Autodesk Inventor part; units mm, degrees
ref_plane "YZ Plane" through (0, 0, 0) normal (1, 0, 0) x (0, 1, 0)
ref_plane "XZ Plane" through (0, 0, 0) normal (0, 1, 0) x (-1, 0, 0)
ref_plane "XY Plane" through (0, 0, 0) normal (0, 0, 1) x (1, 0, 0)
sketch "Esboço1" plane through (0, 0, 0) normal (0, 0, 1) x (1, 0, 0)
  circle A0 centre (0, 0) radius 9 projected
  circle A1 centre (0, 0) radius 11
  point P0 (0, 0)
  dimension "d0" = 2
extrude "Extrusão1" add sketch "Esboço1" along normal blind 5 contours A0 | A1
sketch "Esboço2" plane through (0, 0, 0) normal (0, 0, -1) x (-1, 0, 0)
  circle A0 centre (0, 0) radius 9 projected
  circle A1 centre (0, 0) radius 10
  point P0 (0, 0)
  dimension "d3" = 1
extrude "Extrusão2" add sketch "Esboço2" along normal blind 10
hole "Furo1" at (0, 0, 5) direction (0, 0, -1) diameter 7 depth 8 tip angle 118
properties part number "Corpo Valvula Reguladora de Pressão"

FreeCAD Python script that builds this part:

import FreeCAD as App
import Part
import Sketcher
Q = App.Units.Quantity

doc = App.newDocument("Part")
body = doc.addObject("PartDesign::Body", "Body")

# Sketch on XY plane
sketch1 = body.newObject("Sketcher::SketchObject", "Sketch")
sketch1.AttachmentSupport = (doc.getObject("XY_Plane"), [""])
sketch1.MapMode = "FlatFace"
sketch1.addGeometry(Part.Circle(App.Vector(0, 0, 0), App.Vector(0, 0, 1), 11), False)
sketch1.addConstraint([
    Sketcher.Constraint("Coincident", 0, 3, -1, 1),
    Sketcher.Constraint("Diameter", 0, Q("22 mm")),
])
pad1 = body.newObject("PartDesign::Pad", "Pad")
pad1.Profile = sketch1
pad1.Length = 5

# Sketch on XY plane
sketch2 = body.newObject("Sketcher::SketchObject", "Sketch001")
sketch2.AttachmentSupport = (doc.getObject("XY_Plane"), [""])
sketch2.MapMode = "FlatFace"
sketch2.addGeometry([
    Part.Circle(App.Vector(0, 0, 0), App.Vector(0, 0, 1), 10),
    Part.Circle(App.Vector(0, 0, 0), App.Vector(0, 0, 1), 9),
], False)
sketch2.addConstraint([
    Sketcher.Constraint("Coincident", 0, 3, -1, 1),
    Sketcher.Constraint("Coincident", 1, 3, -1, 1),
    Sketcher.Constraint("Diameter", 0, Q("20 mm")),
    Sketcher.Constraint("Diameter", 1, Q("18 mm")),
])
pad2 = body.newObject("PartDesign::Pad", "Pad001")
pad2.Profile = sketch2
pad2.Length = 10
pad2.Reversed = True

# Sketch on XY plane
sketch3 = body.newObject("Sketcher::SketchObject", "Sketch002")
sketch3.AttachmentSupport = (doc.getObject("XY_Plane"), [""])
sketch3.MapMode = "FlatFace"
sketch3.AttachmentOffset = App.Placement(App.Vector(0, 0, 5), App.Rotation())
sketch3.addGeometry(Part.Circle(App.Vector(0, 0, 0), App.Vector(0, 0, 1), 3.5), False)
sketch3.addConstraint([
    Sketcher.Constraint("Coincident", 0, 3, -1, 1),
    Sketcher.Constraint("Diameter", 0, Q("7 mm")),
])
doc.recompute()
hole = body.newObject("PartDesign::Hole", "Hole")
hole.Profile = sketch3
hole.ThreadType = "None"
hole.Diameter = 7
hole.DepthType = "Dimension"
hole.Depth = 8
hole.DrillPoint = "Angled"
hole.DrillPointAngle = 118

doc.recompute()
